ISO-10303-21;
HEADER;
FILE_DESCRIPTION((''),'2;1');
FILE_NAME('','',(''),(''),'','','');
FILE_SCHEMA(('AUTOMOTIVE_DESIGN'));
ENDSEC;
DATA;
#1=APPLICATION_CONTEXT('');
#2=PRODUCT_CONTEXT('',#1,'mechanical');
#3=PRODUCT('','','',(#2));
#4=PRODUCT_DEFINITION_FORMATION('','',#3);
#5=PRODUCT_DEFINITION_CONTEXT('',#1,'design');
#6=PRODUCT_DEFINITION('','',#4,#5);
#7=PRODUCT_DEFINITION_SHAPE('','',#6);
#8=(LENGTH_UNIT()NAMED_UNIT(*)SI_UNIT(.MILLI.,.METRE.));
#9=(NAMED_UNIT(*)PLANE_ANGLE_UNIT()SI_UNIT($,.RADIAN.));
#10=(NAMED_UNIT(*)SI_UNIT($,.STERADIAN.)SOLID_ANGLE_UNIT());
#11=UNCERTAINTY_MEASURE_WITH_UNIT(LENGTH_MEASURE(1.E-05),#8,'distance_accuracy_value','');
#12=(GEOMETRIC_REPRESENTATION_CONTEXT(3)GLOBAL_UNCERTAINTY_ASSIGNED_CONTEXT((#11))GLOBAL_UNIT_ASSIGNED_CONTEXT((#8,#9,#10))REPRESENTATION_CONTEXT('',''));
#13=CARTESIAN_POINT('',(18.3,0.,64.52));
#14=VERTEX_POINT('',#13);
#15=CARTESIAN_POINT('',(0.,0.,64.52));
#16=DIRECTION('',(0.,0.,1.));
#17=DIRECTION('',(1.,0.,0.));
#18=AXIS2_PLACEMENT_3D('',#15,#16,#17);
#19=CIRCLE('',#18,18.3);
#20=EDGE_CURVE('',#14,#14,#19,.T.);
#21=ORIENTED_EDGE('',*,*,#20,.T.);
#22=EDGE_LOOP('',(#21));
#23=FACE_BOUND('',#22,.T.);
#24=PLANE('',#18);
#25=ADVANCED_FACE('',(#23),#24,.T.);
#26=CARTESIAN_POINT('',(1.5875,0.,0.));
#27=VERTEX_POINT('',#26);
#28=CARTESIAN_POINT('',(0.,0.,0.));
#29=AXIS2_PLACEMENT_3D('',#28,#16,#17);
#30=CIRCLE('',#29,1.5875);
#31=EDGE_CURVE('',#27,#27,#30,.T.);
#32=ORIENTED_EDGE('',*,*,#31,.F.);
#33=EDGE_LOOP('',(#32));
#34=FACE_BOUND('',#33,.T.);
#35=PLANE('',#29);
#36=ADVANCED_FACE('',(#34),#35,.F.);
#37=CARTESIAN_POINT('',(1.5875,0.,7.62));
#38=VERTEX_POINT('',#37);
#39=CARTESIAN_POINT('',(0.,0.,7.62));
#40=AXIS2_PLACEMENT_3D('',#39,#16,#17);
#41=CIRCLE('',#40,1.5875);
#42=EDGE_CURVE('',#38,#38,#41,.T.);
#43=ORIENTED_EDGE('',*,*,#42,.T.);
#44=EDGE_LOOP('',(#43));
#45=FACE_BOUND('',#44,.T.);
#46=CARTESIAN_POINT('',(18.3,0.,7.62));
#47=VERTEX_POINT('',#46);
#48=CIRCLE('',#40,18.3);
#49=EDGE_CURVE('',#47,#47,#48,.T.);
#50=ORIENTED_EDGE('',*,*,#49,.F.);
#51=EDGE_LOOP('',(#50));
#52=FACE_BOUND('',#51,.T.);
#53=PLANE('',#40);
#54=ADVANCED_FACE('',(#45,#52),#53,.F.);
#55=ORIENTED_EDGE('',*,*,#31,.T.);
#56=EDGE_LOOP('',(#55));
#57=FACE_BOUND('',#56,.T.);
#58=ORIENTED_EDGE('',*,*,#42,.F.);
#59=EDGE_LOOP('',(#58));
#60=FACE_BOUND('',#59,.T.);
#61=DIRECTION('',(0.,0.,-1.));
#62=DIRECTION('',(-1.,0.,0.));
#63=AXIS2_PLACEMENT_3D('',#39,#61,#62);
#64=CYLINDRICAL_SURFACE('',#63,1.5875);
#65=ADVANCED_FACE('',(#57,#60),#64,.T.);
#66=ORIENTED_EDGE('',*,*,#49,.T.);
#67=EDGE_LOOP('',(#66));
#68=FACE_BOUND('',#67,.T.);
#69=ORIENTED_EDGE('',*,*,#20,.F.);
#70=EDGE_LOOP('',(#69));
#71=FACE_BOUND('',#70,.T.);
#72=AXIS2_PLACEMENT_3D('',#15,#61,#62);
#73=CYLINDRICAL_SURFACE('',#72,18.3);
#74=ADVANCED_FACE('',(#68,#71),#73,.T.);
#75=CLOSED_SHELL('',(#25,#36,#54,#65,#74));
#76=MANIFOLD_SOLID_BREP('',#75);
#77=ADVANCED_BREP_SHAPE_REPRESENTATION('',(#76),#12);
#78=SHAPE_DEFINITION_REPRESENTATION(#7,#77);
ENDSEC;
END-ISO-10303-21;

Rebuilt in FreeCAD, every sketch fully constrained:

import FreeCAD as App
import Part
import Sketcher

doc = App.newDocument("Part")
body = doc.addObject("PartDesign::Body", "Body")

sketch1 = body.newObject("Sketcher::SketchObject", "Sketch")
sketch1.AttachmentSupport = (doc.getObject("XY_Plane"), [""])
sketch1.MapMode = "FlatFace"
sketch1.addGeometry(Part.Circle(App.Vector(0, 0, 0), App.Vector(0, 0, 1), 1.6), False)
sketch1.addConstraint([
    Sketcher.Constraint("Coincident", 0, 3, -1, 1),
    Sketcher.Constraint("Diameter", 0, 3.175),
])
pad1 = body.newObject("PartDesign::Pad", "Pad")
pad1.Profile = sketch1
pad1.Length = 7.62

sketch2 = body.newObject("Sketcher::SketchObject", "Sketch001")
sketch2.AttachmentSupport = (doc.getObject("XY_Plane"), [""])
sketch2.MapMode = "FlatFace"
sketch2.AttachmentOffset = App.Placement(App.Vector(0, 0, 7.62), App.Rotation())
sketch2.addGeometry(Part.Circle(App.Vector(0, 0, 0), App.Vector(0, 0, 1), 18), False)
sketch2.addConstraint([
    Sketcher.Constraint("Coincident", 0, 3, -1, 1),
    Sketcher.Constraint("Diameter", 0, 36.6),
])
pad2 = body.newObject("PartDesign::Pad", "Pad001")
pad2.Profile = sketch2
pad2.Length = 56.9

doc.recompute()
